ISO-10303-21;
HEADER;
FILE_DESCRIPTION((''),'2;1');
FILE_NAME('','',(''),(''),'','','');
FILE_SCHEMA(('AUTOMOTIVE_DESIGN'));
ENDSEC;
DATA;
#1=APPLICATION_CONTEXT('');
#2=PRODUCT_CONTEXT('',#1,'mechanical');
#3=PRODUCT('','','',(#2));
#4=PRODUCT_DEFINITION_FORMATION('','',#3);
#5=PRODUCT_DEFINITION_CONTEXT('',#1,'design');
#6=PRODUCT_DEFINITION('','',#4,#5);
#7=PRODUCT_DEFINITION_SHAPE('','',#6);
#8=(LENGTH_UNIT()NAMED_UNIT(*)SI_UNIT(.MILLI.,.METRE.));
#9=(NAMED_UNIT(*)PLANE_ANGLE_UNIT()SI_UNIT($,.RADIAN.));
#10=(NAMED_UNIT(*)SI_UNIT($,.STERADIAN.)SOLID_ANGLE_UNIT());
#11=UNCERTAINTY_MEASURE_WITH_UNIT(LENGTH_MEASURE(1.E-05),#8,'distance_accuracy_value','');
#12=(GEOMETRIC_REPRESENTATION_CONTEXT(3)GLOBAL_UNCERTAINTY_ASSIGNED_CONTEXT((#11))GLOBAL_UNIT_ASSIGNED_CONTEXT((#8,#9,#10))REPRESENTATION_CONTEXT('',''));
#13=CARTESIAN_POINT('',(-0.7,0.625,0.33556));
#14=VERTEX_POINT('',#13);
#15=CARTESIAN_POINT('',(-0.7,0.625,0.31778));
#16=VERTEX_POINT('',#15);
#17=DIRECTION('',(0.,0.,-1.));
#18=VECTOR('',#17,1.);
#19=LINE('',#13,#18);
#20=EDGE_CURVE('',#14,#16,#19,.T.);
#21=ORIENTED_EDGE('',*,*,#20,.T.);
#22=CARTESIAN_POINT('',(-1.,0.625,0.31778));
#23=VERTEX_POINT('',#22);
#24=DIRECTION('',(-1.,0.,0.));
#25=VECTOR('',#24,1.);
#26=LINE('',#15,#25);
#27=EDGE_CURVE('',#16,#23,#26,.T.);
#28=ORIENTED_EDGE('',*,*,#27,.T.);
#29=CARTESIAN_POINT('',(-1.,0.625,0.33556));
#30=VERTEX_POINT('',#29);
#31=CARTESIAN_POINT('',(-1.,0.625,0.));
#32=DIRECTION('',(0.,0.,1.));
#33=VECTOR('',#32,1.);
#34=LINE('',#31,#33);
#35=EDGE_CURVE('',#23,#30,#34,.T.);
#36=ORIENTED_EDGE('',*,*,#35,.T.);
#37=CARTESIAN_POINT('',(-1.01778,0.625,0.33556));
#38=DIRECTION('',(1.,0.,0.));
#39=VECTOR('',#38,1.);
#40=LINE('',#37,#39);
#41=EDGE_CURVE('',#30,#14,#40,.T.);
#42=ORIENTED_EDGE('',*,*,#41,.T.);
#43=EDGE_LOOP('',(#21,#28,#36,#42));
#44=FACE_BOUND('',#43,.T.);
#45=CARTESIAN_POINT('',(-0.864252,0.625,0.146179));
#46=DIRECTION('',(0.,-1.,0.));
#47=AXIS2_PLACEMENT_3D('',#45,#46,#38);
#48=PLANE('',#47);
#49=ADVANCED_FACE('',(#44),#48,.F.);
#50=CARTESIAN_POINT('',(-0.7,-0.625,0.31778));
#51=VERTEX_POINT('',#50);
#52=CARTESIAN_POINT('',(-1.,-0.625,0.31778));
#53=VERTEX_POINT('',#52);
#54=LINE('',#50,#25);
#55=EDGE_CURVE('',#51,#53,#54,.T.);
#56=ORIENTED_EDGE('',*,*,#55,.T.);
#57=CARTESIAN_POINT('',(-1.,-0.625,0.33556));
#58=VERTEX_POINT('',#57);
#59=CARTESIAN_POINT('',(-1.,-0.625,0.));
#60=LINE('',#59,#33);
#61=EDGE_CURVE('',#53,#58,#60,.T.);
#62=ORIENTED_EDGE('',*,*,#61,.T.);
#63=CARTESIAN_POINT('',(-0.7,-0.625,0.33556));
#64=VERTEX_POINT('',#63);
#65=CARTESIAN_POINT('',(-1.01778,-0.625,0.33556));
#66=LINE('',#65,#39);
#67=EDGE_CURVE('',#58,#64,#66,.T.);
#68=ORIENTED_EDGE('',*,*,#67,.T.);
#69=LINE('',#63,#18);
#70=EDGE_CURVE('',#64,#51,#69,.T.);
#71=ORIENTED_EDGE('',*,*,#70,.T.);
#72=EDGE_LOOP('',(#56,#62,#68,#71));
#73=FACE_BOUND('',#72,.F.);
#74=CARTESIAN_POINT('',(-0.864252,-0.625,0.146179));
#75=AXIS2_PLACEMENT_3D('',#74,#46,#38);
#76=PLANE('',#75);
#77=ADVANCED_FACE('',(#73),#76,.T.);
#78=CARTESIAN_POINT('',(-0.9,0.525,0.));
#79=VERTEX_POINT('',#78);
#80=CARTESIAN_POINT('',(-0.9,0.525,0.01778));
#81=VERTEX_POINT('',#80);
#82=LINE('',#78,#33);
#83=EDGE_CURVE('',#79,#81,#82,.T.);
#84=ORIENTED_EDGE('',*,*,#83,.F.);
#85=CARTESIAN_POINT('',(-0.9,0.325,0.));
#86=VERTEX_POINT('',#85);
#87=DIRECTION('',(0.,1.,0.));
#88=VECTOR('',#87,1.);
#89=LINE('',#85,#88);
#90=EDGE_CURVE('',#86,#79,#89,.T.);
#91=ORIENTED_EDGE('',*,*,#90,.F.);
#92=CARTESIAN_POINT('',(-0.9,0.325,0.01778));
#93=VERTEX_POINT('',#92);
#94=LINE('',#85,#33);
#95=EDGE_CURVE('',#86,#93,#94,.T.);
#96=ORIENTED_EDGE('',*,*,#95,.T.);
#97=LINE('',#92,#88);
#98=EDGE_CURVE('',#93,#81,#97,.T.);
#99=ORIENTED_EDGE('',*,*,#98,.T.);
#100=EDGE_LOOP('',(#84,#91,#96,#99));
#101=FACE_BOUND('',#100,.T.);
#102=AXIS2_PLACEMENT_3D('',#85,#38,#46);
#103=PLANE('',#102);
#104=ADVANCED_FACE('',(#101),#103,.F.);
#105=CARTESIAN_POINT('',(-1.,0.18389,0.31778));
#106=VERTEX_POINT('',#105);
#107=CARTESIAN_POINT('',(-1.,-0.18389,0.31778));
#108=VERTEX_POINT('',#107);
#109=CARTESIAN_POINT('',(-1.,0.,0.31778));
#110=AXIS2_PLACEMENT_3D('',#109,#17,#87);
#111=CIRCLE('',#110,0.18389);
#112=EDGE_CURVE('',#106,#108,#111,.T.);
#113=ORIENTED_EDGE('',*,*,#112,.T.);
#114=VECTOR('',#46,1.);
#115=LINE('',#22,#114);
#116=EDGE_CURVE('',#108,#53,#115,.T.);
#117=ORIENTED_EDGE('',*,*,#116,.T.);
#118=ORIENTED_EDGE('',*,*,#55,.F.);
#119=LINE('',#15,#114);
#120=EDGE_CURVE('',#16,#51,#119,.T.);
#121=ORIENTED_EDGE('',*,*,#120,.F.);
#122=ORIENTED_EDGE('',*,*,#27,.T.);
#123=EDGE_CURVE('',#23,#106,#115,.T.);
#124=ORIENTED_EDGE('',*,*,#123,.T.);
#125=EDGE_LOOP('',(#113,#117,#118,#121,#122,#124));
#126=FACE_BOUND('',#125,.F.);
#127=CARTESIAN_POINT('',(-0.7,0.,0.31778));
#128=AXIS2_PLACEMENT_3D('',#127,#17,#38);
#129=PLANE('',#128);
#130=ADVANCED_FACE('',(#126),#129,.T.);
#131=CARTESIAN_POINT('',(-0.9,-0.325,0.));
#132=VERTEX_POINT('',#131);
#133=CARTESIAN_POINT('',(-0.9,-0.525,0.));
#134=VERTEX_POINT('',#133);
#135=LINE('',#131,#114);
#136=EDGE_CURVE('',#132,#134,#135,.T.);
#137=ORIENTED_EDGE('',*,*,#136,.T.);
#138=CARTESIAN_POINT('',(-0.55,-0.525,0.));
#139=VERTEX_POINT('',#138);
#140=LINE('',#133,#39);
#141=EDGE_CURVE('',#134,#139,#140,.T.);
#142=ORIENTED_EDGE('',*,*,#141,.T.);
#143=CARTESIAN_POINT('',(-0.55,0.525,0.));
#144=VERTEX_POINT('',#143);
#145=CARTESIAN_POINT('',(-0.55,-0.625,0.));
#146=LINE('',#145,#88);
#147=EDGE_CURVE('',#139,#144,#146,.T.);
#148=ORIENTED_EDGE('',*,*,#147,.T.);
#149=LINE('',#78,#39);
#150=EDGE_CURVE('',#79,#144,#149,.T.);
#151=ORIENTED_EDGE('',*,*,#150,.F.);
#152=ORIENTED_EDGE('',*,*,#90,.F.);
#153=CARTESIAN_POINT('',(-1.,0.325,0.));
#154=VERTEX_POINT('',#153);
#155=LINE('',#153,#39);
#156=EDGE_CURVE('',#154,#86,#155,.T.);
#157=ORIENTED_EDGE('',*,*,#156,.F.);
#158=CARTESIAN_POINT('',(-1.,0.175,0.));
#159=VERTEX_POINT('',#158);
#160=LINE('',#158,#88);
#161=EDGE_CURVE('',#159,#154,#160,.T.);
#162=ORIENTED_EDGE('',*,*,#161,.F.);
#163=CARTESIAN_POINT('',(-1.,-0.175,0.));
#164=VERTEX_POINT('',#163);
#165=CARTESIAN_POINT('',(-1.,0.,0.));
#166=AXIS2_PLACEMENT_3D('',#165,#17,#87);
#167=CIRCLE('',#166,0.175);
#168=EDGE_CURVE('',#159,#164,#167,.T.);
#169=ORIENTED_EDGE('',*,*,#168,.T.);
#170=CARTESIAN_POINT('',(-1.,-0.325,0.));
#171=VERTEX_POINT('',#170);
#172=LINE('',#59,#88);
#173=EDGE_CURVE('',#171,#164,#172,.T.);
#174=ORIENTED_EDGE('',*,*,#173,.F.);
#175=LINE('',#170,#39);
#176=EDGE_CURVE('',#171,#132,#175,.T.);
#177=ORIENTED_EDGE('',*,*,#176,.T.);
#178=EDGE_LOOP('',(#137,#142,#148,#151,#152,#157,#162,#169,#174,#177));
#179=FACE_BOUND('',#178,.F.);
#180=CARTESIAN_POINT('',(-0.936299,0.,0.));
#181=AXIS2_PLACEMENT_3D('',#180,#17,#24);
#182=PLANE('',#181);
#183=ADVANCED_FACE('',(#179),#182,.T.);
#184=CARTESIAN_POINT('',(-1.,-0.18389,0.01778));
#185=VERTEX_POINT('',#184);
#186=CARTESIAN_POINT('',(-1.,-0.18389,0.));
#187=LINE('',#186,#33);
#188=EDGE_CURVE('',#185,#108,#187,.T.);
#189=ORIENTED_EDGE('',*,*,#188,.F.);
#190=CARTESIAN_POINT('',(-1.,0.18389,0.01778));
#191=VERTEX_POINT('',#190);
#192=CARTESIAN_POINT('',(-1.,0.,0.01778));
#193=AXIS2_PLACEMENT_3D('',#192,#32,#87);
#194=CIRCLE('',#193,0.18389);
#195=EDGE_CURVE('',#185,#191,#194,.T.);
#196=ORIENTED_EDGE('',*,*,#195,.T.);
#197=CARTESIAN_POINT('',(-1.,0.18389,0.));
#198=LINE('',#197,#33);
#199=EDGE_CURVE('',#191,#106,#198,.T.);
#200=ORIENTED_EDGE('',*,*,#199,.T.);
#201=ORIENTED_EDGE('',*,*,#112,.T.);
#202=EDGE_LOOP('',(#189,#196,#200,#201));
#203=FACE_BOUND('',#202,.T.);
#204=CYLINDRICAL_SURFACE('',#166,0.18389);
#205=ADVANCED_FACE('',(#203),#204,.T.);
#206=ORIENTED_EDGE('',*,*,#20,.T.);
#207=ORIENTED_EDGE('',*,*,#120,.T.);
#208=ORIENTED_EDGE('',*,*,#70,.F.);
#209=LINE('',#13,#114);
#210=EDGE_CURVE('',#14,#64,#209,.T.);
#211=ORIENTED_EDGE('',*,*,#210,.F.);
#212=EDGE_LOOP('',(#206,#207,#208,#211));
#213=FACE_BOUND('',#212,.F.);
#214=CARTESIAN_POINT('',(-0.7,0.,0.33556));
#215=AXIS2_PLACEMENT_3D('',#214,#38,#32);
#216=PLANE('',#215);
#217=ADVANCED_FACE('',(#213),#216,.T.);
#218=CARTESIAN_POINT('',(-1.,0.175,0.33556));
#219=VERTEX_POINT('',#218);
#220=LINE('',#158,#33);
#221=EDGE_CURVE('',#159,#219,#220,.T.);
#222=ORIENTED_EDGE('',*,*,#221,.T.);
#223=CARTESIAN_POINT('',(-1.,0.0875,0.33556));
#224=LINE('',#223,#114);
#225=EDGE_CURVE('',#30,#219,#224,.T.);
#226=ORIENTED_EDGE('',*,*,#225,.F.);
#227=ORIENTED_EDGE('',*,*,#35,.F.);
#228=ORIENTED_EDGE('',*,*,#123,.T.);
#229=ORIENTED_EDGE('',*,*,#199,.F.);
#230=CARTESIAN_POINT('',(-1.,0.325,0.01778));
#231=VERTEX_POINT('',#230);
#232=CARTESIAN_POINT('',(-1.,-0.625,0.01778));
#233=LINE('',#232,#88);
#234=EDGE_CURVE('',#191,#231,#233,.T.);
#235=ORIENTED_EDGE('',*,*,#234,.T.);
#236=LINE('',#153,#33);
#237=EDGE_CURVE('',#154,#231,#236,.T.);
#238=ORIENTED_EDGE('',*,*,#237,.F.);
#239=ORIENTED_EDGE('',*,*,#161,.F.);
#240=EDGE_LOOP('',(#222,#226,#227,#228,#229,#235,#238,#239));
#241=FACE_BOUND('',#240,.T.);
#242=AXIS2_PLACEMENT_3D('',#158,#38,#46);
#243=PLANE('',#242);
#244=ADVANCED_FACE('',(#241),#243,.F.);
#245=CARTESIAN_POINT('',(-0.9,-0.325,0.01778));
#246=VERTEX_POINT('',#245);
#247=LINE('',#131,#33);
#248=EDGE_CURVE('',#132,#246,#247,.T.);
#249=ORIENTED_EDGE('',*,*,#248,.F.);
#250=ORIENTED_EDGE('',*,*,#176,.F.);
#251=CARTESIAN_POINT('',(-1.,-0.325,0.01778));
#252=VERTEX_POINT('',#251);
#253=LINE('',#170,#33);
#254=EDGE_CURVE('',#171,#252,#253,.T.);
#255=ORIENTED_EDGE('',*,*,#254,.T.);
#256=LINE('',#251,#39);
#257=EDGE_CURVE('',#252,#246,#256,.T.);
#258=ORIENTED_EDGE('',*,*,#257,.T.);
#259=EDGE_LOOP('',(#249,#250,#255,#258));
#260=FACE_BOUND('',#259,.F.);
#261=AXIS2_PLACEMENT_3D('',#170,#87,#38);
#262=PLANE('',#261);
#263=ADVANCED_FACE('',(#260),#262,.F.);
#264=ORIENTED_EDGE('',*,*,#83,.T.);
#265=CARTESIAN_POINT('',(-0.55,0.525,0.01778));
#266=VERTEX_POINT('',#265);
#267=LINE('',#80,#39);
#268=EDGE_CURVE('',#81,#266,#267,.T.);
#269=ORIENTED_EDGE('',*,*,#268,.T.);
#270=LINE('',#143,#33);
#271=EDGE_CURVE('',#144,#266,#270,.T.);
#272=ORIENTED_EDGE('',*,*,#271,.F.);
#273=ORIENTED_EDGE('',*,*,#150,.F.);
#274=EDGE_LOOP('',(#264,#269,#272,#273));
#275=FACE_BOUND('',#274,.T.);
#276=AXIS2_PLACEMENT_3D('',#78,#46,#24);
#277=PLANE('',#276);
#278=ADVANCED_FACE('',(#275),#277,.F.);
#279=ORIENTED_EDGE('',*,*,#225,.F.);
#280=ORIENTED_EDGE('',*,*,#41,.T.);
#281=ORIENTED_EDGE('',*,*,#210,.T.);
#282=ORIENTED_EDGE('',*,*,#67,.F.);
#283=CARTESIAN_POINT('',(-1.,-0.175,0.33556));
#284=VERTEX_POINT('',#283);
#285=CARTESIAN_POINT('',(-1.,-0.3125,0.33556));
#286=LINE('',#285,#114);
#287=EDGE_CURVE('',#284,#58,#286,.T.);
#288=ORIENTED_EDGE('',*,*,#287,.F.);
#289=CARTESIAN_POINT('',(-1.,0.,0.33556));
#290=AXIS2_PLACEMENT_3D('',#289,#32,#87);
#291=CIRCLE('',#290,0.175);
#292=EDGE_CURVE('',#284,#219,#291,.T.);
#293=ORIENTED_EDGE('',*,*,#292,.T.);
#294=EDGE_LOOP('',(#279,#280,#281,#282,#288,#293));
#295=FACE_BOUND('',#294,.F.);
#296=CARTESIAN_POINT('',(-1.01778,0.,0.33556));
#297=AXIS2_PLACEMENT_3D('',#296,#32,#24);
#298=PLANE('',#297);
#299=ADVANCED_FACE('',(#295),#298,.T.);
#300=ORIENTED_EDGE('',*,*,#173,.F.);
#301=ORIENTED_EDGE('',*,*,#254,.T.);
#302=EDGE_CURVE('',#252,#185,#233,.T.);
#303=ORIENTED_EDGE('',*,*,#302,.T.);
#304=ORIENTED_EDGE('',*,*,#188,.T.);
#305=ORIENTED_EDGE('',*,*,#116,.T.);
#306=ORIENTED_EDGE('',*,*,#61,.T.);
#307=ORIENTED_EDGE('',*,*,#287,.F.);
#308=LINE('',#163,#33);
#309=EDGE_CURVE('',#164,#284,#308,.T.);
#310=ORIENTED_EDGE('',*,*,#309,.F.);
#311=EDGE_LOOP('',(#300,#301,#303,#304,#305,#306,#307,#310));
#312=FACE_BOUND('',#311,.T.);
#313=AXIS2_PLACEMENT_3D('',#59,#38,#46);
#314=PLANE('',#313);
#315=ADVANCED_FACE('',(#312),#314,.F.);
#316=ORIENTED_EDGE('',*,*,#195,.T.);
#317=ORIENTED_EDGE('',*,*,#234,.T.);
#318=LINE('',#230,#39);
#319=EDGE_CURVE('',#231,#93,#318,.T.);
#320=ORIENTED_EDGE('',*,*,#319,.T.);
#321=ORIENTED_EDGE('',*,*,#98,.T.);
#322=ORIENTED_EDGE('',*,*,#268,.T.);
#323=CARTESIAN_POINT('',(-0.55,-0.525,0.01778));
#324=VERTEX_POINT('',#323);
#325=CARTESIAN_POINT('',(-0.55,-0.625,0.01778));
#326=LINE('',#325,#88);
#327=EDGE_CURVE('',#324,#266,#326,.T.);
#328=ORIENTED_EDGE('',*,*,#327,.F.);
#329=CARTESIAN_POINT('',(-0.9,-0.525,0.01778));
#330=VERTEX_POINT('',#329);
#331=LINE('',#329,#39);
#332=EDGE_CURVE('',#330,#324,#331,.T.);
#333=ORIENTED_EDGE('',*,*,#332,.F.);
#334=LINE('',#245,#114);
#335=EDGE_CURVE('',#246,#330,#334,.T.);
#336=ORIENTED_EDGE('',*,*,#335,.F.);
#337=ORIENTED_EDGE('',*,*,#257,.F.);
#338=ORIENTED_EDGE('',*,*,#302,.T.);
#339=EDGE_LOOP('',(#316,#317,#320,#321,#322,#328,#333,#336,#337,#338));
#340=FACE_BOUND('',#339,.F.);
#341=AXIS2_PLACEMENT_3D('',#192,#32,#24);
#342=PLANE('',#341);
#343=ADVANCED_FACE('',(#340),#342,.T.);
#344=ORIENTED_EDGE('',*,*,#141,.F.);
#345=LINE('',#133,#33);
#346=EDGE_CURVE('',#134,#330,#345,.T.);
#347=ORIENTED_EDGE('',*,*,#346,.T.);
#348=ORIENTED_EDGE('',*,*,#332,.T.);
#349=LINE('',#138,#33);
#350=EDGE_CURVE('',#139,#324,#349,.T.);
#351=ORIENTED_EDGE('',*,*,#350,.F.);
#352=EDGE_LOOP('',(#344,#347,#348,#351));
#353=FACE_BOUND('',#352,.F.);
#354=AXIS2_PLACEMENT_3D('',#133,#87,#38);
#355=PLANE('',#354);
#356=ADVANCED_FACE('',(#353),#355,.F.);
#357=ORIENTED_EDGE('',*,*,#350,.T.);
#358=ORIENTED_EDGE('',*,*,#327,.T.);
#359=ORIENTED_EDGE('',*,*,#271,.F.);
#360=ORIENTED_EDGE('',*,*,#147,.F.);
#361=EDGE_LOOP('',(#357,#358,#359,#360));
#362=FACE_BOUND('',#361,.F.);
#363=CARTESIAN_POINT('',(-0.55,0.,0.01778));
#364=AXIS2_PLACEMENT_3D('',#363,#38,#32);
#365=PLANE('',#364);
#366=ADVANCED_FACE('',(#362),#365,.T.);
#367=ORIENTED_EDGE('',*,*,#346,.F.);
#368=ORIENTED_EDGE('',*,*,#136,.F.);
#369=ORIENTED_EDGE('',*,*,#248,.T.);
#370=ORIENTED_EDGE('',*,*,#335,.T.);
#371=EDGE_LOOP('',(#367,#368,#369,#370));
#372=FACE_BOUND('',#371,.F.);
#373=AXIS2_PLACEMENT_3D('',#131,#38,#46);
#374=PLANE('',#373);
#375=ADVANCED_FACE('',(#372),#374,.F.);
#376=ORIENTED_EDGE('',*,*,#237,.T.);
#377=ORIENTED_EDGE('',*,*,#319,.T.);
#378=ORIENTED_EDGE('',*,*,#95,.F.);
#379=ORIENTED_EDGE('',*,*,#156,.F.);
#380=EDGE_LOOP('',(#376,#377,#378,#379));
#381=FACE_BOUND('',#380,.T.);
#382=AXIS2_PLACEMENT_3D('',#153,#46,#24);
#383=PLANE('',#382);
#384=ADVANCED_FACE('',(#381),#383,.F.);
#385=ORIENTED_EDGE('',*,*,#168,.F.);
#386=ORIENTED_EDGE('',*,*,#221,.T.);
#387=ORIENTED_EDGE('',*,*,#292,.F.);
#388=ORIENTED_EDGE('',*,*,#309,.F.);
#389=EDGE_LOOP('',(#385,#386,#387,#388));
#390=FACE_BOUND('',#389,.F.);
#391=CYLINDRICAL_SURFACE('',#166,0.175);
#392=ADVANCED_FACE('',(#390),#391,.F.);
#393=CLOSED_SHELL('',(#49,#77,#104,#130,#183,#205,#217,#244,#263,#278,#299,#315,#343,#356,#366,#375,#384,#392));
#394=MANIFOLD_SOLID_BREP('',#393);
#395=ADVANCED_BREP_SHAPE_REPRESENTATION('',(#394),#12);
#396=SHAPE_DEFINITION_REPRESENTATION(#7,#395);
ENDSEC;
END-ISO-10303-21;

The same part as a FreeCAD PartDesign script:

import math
import FreeCAD as App
import Part
import Sketcher
from FreeCAD import Vector


def add_polygon(sketch, points):
    """Adds a closed chain of lines whose ends are joined by coincident constraints."""
    first, n = sketch.GeometryCount, len(points)
    for a, b in zip(points, points[1:] + points[:1]):
        sketch.addGeometry(Part.LineSegment(App.Vector(*a, 0), App.Vector(*b, 0)), False)
    for i in range(n):
        sketch.addConstraint(Sketcher.Constraint("Coincident", first + i, 2, first + (i + 1) % n, 1))

doc = App.newDocument("Part")
body = doc.addObject("PartDesign::Body", "Body")

# Sketch on XZ plane
sketch1 = body.newObject("Sketcher::SketchObject", "Sketch")
sketch1.AttachmentSupport = (doc.getObject("XZ_Plane"), [""])
sketch1.MapMode = "FlatFace"
add_polygon(sketch1, [(0.55, 0), (1.018, 0), (1.018, 0.336), (0.7, 0.336), (0.7, 0.318), (1, 0.318), (1, 0.018), (0.55, 0.018)])  # lines 0-7
sketch1.addConstraint([
    Sketcher.Constraint("Horizontal", 0),
    Sketcher.Constraint("Vertical", 1),
    Sketcher.Constraint("Horizontal", 2),
    Sketcher.Constraint("Vertical", 3),
    Sketcher.Constraint("Horizontal", 4),
    Sketcher.Constraint("Vertical", 5),
    Sketcher.Constraint("Horizontal", 6),
    Sketcher.Constraint("Vertical", 7),
    Sketcher.Constraint("PointOnObject", 0, 2, -1),
    Sketcher.Constraint("Equal", 4, 5),
    Sketcher.Constraint("Equal", 3, 7),
    Sketcher.Constraint("DistanceX", 4, 1, 4, 2, 0.3),
    Sketcher.Constraint("DistanceX", -1, 1, 4, 2, 1.0),
    Sketcher.Constraint("DistanceX", 6, 2, 6, 1, 0.45),
    Sketcher.Constraint("DistanceX", 0, 1, 0, 2, 0.46778),
    Sketcher.Constraint("DistanceY", 1, 1, 1, 2, 0.33556),
])
pad1 = body.newObject("PartDesign::Pad", "Pad")
pad1.Profile = sketch1
pad1.Type = "TwoLengths"
pad1.Length = 0.625
pad1.Length2 = 0.625

# Sketch on XY plane
sketch2 = body.newObject("Sketcher::SketchObject", "Sketch001")
sketch2.AttachmentSupport = (doc.getObject("XY_Plane"), [""])
sketch2.MapMode = "FlatFace"
sketch2.addGeometry([
    Part.LineSegment(Vector(1, -0.18, 0), Vector(1, 0.18, 0)),
    Part.ArcOfCircle(Part.Circle(Vector(1, 0, 0), Vector(0, 0, 1), 0.18), math.radians(90), math.radians(270)),
], False)
sketch2.addConstraint([
    Sketcher.Constraint("Coincident", 0, 1, 1, 2),
    Sketcher.Constraint("Coincident", 1, 1, 0, 2),
    Sketcher.Constraint("Vertical", 0),
    Sketcher.Constraint("PointOnObject", 1, 3, -1),
    Sketcher.Constraint("Vertical", 1, 3, 0, 1),
    Sketcher.Constraint("DistanceX", -1, 1, 1, 3, 1.0),
    Sketcher.Constraint("Radius", 1, 0.18389),
])
pad2 = body.newObject("PartDesign::Pad", "Pad001")
pad2.Profile = sketch2
pad2.Length = 0.31778

# Sketch on XY plane
sketch3 = body.newObject("Sketcher::SketchObject", "Sketch002")
sketch3.AttachmentSupport = (doc.getObject("XY_Plane"), [""])
sketch3.MapMode = "FlatFace"
add_polygon(sketch3, [(1, 0.62), (0.55, 0.62), (0.55, 0.53), (0.9, 0.53), (0.9, 0.33), (1, 0.33)])  # lines 0-5
sketch3.addConstraint([
    Sketcher.Constraint("Horizontal", 0),
    Sketcher.Constraint("Vertical", 1),
    Sketcher.Constraint("Horizontal", 2),
    Sketcher.Constraint("Vertical", 3),
    Sketcher.Constraint("Horizontal", 4),
    Sketcher.Constraint("Vertical", 5),
    Sketcher.Constraint("Equal", 4, 1),
    Sketcher.Constraint("DistanceX", 4, 1, 4, 2, 0.1),
    Sketcher.Constraint("DistanceY", 3, 2, 3, 1, 0.2),
    Sketcher.Constraint("DistanceX", -1, 1, 4, 2, 1.0),
    Sketcher.Constraint("DistanceX", 0, 2, 0, 1, 0.45),
    Sketcher.Constraint("DistanceY", -1, 1, 0, 2, 0.625),
])
pocket1 = body.newObject("PartDesign::Pocket", "Pocket")
pocket1.Profile = sketch3
pocket1.Length = 0.01778
pocket1.Reversed = True
doc.recompute()

mirrored = body.newObject("PartDesign::Mirrored", "Mirrored")
mirrored.Originals = [pocket1]
mirrored.MirrorPlane = (doc.getObject("XZ_Plane"), [""])
body.Tip = mirrored

# Sketch on XY plane
sketch4 = body.newObject("Sketcher::SketchObject", "Sketch003")
sketch4.AttachmentSupport = (doc.getObject("XY_Plane"), [""])
sketch4.MapMode = "FlatFace"
sketch4.addGeometry([
    Part.LineSegment(Vector(1, 0.625, 0), Vector(1, 0.175, 0)),  # 0
    Part.ArcOfCircle(Part.Circle(Vector(1, 0, 0), Vector(0, 0, 1), 0.175), math.radians(90), math.radians(270)),  # 1
    Part.LineSegment(Vector(1, -0.175, 0), Vector(1, -0.625, 0)),  # 2
    Part.LineSegment(Vector(1, -0.625, 0), Vector(1.018, -0.625, 0)),  # 3
    Part.LineSegment(Vector(1.018, -0.625, 0), Vector(1.018, 0.625, 0)),  # 4
    Part.LineSegment(Vector(1.018, 0.625, 0), Vector(1, 0.625, 0)),  # 5
], False)
sketch4.addConstraint([
    Sketcher.Constraint("Coincident", 0, 2, 1, 1),
    Sketcher.Constraint("Coincident", 1, 2, 2, 1),
    Sketcher.Constraint("Coincident", 2, 2, 3, 1),
    Sketcher.Constraint("Coincident", 3, 2, 4, 1),
    Sketcher.Constraint("Coincident", 4, 2, 5, 1),
    Sketcher.Constraint("Coincident", 5, 2, 0, 1),
    Sketcher.Constraint("Vertical", 0),
    Sketcher.Constraint("Vertical", 2),
    Sketcher.Constraint("Horizontal", 3),
    Sketcher.Constraint("Vertical", 4),
    Sketcher.Constraint("Horizontal", 5),
    Sketcher.Constraint("Symmetric", 0, 2, 1, 2, -1),
    Sketcher.Constraint("Vertical", 1, 3, 0, 2),
    Sketcher.Constraint("Equal", 0, 2),
    Sketcher.Constraint("DistanceX", -1, 1, 1, 3, 1.0),
    Sketcher.Constraint("Radius", 1, 0.175),
    Sketcher.Constraint("DistanceY", 0, 2, 0, 1, 0.45),
    Sketcher.Constraint("DistanceX", 3, 1, 3, 2, 0.01778),
])
pocket2 = body.newObject("PartDesign::Pocket", "Pocket001")
pocket2.Profile = sketch4
pocket2.Type = "ThroughAll"
pocket2.Midplane = True
body2 = doc.addObject("PartDesign::Body", "Body001")
doc.recompute()

mirroring = doc.addObject("Part::Mirroring", "Mirroring")
mirroring.Source = body
mirroring.Base = Vector(0, 0, 0)
mirroring.Normal = Vector(1, 0, 0)
body2.BaseFeature = mirroring
doc.recompute()
body.Visibility = False
mirroring.Visibility = False

doc.recompute()
